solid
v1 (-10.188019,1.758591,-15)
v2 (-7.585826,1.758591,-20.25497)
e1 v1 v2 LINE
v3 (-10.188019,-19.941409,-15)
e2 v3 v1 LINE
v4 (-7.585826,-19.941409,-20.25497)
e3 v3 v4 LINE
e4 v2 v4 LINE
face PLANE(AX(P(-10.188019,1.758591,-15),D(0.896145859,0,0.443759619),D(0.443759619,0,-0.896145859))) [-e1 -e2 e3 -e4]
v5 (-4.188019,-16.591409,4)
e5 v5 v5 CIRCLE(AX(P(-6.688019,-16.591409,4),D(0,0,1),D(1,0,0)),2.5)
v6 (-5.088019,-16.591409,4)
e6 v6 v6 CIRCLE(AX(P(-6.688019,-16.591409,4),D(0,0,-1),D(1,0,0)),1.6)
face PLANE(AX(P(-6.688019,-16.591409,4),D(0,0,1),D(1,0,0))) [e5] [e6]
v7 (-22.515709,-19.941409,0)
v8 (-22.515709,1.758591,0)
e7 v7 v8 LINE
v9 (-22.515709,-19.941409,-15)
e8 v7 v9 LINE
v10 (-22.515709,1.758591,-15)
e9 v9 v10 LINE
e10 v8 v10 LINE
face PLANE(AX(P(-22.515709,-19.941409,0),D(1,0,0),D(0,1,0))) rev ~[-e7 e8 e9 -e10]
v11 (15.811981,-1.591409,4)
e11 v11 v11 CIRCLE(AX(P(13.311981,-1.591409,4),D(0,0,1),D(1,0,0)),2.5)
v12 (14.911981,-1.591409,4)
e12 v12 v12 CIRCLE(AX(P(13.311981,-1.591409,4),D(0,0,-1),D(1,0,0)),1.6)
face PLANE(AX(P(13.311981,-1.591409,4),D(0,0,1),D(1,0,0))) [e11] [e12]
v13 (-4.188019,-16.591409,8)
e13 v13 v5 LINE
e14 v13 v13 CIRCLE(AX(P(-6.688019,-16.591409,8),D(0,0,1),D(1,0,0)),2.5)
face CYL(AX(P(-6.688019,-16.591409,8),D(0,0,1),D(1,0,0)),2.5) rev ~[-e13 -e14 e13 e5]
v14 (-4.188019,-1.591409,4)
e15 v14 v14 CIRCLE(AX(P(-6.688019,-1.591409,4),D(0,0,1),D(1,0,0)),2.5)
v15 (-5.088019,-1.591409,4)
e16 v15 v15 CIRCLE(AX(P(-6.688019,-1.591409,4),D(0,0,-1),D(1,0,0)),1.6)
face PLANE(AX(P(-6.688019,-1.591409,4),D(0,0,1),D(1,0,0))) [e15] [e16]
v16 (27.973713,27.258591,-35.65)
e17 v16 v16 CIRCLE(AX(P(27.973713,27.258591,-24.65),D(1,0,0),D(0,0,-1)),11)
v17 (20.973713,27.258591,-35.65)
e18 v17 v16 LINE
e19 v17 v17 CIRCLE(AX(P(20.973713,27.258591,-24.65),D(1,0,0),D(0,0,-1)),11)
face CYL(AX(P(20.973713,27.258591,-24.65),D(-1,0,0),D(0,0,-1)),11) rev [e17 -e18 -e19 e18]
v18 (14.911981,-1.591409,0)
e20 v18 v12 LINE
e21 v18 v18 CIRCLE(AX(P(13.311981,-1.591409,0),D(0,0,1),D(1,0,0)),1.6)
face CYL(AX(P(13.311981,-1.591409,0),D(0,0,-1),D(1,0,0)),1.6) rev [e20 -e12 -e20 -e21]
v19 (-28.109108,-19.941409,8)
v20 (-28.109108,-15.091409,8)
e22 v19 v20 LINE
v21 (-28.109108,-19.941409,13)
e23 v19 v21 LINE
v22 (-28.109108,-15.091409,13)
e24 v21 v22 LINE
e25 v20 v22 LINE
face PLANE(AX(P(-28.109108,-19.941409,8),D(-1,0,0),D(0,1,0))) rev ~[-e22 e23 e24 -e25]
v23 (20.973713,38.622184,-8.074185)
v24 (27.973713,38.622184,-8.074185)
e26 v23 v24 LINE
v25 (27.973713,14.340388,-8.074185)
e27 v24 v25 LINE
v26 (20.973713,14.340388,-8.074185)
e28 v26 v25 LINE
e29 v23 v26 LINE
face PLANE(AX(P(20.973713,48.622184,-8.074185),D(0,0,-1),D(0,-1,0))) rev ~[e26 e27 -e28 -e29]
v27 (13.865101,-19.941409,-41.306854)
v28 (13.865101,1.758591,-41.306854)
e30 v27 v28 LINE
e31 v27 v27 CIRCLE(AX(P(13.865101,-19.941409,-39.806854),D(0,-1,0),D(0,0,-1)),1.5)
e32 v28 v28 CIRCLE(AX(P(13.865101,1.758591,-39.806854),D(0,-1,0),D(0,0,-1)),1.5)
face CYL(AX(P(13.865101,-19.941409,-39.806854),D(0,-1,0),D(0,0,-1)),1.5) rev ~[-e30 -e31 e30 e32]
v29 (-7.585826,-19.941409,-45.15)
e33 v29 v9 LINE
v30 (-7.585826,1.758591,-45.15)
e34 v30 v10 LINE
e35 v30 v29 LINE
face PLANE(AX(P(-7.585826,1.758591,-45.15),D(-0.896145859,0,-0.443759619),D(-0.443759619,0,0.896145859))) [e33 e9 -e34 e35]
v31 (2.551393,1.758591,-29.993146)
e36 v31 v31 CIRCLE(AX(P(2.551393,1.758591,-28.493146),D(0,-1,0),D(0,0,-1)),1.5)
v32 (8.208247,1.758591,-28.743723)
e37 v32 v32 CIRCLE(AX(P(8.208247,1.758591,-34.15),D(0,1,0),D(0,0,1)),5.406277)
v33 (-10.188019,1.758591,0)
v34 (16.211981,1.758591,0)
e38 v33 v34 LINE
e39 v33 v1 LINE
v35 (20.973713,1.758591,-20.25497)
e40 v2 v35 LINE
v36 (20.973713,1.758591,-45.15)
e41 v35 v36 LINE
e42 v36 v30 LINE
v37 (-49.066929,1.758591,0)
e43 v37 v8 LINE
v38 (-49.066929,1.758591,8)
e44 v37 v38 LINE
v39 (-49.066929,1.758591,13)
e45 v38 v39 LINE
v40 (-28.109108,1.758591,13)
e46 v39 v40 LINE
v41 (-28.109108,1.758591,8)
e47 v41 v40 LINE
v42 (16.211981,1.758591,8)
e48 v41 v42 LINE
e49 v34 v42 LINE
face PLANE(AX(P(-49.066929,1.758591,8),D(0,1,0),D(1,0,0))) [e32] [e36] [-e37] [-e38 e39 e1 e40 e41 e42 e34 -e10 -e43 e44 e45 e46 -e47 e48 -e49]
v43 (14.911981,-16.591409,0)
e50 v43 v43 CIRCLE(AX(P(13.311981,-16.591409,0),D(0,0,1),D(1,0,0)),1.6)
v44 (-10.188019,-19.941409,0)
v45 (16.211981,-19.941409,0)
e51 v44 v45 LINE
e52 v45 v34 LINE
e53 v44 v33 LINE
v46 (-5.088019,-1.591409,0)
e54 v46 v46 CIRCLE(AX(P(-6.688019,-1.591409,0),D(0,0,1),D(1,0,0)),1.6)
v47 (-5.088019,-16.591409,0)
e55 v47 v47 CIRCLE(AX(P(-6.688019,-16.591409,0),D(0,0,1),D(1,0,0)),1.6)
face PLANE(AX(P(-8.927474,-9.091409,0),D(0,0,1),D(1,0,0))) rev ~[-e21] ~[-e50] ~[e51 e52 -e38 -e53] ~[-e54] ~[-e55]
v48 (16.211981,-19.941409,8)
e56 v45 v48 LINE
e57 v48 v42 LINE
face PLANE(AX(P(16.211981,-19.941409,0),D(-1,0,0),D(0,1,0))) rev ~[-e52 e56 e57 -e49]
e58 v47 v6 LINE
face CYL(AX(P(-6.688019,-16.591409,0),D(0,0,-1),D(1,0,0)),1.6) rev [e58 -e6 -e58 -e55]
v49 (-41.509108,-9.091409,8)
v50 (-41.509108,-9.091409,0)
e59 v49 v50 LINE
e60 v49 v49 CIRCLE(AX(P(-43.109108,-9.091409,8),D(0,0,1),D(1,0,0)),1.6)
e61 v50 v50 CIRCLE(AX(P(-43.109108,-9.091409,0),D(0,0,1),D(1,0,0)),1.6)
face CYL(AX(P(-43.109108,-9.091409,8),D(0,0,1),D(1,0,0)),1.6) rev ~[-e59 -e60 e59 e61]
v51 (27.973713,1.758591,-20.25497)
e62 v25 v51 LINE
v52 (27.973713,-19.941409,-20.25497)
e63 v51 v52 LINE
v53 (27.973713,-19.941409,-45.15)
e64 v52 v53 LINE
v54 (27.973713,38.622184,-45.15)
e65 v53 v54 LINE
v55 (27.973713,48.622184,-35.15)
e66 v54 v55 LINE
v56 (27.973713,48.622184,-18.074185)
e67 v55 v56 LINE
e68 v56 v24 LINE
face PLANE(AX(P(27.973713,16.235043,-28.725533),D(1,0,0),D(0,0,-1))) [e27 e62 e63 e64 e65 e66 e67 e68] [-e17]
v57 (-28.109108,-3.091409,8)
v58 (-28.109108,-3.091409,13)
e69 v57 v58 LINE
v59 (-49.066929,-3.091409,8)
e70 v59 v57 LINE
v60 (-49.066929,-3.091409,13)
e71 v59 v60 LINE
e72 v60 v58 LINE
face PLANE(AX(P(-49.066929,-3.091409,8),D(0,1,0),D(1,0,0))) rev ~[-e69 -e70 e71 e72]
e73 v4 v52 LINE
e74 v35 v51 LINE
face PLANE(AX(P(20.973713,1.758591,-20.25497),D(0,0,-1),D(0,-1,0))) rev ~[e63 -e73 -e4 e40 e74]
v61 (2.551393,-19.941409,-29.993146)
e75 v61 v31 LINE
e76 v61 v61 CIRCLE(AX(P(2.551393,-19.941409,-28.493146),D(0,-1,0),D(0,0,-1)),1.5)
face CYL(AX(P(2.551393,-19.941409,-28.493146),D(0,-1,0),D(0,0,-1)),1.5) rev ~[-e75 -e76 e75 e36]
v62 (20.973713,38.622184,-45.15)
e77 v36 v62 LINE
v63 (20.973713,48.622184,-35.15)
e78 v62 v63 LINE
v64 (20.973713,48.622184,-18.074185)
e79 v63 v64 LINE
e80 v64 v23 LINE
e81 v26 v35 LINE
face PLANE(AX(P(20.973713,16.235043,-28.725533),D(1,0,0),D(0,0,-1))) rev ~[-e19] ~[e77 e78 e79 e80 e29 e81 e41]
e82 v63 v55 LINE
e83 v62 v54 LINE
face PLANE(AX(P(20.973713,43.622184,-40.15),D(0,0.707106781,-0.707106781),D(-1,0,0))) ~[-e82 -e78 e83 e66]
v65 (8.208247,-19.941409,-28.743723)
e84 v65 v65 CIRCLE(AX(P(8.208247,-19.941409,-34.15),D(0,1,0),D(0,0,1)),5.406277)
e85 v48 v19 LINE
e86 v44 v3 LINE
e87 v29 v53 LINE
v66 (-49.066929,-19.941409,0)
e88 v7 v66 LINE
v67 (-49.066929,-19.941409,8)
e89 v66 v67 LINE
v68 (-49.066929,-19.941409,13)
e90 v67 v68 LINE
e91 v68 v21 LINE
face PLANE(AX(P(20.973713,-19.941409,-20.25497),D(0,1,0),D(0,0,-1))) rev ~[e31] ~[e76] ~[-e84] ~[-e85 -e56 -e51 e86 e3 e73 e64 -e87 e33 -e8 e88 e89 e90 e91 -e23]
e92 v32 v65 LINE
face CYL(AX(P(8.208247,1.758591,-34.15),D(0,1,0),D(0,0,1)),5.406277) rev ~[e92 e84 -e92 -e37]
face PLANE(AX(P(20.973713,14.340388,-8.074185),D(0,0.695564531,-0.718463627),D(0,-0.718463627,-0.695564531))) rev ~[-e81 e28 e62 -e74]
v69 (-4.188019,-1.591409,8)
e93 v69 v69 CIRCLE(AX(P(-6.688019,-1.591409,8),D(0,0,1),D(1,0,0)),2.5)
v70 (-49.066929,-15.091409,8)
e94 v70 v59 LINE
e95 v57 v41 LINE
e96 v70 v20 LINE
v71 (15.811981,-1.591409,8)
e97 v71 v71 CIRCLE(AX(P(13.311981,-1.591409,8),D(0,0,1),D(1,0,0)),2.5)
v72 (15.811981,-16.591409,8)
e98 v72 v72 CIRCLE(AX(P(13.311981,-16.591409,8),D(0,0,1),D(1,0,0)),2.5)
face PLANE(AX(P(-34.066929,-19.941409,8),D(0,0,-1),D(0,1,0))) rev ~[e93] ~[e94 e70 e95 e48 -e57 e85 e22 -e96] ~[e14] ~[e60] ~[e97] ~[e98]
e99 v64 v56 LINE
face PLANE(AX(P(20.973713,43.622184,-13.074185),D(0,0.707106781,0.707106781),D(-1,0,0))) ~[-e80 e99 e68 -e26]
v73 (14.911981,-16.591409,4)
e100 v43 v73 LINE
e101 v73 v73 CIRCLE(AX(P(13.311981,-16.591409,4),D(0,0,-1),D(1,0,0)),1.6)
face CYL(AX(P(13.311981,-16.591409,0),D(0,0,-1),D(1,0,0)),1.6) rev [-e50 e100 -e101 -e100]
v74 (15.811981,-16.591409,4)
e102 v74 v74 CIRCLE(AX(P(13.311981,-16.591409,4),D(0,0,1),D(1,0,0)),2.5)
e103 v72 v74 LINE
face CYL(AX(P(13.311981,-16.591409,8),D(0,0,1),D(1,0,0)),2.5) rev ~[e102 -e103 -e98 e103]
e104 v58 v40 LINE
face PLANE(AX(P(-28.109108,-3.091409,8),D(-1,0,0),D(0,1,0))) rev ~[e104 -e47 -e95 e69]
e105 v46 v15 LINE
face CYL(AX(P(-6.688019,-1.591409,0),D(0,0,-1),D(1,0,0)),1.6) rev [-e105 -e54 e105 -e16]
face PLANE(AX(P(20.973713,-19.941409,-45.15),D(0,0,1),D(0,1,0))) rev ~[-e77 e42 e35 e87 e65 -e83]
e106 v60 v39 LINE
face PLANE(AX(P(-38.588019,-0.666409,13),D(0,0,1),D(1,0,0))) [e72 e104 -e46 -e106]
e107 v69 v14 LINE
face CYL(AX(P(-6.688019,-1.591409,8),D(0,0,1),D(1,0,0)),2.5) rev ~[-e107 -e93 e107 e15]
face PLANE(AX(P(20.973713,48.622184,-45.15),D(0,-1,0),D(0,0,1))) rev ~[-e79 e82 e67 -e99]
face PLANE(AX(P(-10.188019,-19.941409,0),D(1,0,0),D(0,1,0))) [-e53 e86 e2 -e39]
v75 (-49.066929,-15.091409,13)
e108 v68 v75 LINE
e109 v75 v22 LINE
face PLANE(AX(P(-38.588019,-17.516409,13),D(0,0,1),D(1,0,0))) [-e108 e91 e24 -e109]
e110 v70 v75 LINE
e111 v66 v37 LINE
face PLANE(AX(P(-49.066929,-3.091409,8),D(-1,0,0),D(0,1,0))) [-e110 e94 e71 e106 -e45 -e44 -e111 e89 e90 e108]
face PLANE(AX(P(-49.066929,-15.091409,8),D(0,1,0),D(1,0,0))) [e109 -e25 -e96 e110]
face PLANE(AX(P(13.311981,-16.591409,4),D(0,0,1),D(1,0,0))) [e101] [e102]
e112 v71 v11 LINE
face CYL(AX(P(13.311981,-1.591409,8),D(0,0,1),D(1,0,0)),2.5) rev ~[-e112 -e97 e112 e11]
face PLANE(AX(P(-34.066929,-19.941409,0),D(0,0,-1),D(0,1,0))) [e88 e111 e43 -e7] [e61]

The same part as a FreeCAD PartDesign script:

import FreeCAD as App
import Part
import Sketcher
from FreeCAD import Vector
Q = App.Units.Quantity


def edges_at(feature, points):
    """Names of the edges that pass closest to the given points."""
    edges = feature.Shape.Edges
    near = lambda p: min(range(len(edges)), key=lambda i: edges[i].distToShape(Part.Vertex(*p))[0])
    return sorted({f"Edge{near(p) + 1}" for p in points})


def add_polygon(sketch, points):
    """Adds a closed chain of lines whose ends are joined by coincident constraints."""
    first, n = sketch.GeometryCount, len(points)
    for a, b in zip(points, points[1:] + points[:1]):
        sketch.addGeometry(Part.LineSegment(App.Vector(*a, 0), App.Vector(*b, 0)), False)
    for i in range(n):
        sketch.addConstraint(Sketcher.Constraint("Coincident", first + i, 2, first + (i + 1) % n, 1))

doc = App.newDocument("Part")
body = doc.addObject("PartDesign::Body", "Body")

# Sketch on XY plane
sketch1 = doc.addObject("Sketcher::SketchObject", "Sketch")
body.addObject(sketch1)
sketch1.AttachmentSupport = (doc.XY_Plane, [""])
sketch1.MapMode = "FlatFace"
add_polygon(sketch1, [(-34.066929, 1.758591), (-34.066929, -19.941409), (16.211981, -19.941409), (16.211981, 1.758591)])  # lines 0-3
sketch1.addGeometry(Part.Circle(Vector(-6.688019, -16.591409, 0), Vector(0, 0, 1), 1.6), False)  # 4
sketch1.addGeometry(Part.Circle(Vector(13.311981, -16.591409, 0), Vector(0, 0, 1), 1.6), False)  # 5
sketch1.addGeometry(Part.Circle(Vector(-6.688019, -1.591409, 0), Vector(0, 0, 1), 1.6), False)  # 6
sketch1.addGeometry(Part.Circle(Vector(13.311981, -1.591409, 0), Vector(0, 0, 1), 1.6), False)  # 7
sketch1.addConstraint([
    Sketcher.Constraint("Vertical", 0),
    Sketcher.Constraint("Horizontal", 1),
    Sketcher.Constraint("Vertical", 2),
    Sketcher.Constraint("Horizontal", 3),
    Sketcher.Constraint("Equal", 4, 5),
    Sketcher.Constraint("Equal", 5, 6),
    Sketcher.Constraint("Equal", 6, 7),
    Sketcher.Constraint("Horizontal", 4, 3, 5, 3),
    Sketcher.Constraint("Horizontal", 6, 3, 7, 3),
    Sketcher.Constraint("Vertical", 4, 3, 6, 3),
    Sketcher.Constraint("Vertical", 5, 3, 7, 3),
    Sketcher.Constraint("Diameter", 4, Q("3.2 mm")),
    Sketcher.Constraint("DistanceY", 0, 2, 0, 1, Q("21.7 mm")),
    Sketcher.Constraint("DistanceX", 4, 3, 5, 3, Q("20 mm")),
    Sketcher.Constraint("DistanceY", 4, 3, 6, 3, Q("15 mm")),
    Sketcher.Constraint("DistanceX", 5, 3, 1, 2, Q("2.9 mm")),
    Sketcher.Constraint("DistanceY", 0, 2, 4, 3, Q("3.35 mm")),
    Sketcher.Constraint("DistanceX", 1, 1, 1, 2, Q("50.278911 mm")),
    Sketcher.Constraint("DistanceX", 4, 3, -1, 1, Q("6.688019 mm")),
    Sketcher.Constraint("DistanceY", 4, 3, -1, 1, Q("16.591409 mm")),
])
pad1 = doc.addObject("PartDesign::Pad", "Pad")
body.addObject(pad1)
pad1.Profile = sketch1
pad1.Length = 8

# Sketch on XY plane
sketch2 = doc.addObject("Sketcher::SketchObject", "Sketch001")
body.addObject(sketch2)
sketch2.AttachmentSupport = (doc.XY_Plane, [""])
sketch2.MapMode = "FlatFace"
sketch2.AttachmentOffset = App.Placement(Vector(0, 0, 8), App.Rotation())
sketch2.addGeometry([
    Part.Circle(Vector(13.311981, -16.591409, 0), Vector(0, 0, 1), 2.5),
    Part.Circle(Vector(-6.688019, -16.591409, 0), Vector(0, 0, 1), 2.5),
    Part.Circle(Vector(-6.688019, -1.591409, 0), Vector(0, 0, 1), 2.5),
    Part.Circle(Vector(13.311981, -1.591409, 0), Vector(0, 0, 1), 2.5),
], False)
sketch2.addConstraint([
    Sketcher.Constraint("Equal", 0, 1),
    Sketcher.Constraint("Equal", 1, 2),
    Sketcher.Constraint("Equal", 2, 3),
    Sketcher.Constraint("Horizontal", 0, 3, 1, 3),
    Sketcher.Constraint("Horizontal", 2, 3, 3, 3),
    Sketcher.Constraint("Vertical", 1, 3, 2, 3),
    Sketcher.Constraint("Vertical", 0, 3, 3, 3),
    Sketcher.Constraint("Diameter", 0, Q("5 mm")),
    Sketcher.Constraint("DistanceX", 1, 3, 0, 3, Q("20 mm")),
    Sketcher.Constraint("DistanceY", 1, 3, 2, 3, Q("15 mm")),
    Sketcher.Constraint("DistanceX", -1, 1, 0, 3, Q("13.311981 mm")),
    Sketcher.Constraint("DistanceY", 0, 3, -1, 1, Q("16.591409 mm")),
])
pocket1 = doc.addObject("PartDesign::Pocket", "Pocket")
body.addObject(pocket1)
pocket1.Profile = sketch2
pocket1.Length = 4

# Sketch on XY plane
sketch3 = doc.addObject("Sketcher::SketchObject", "Sketch002")
body.addObject(sketch3)
sketch3.AttachmentSupport = (doc.XY_Plane, [""])
sketch3.MapMode = "FlatFace"
add_polygon(sketch3, [(-10.188019, 1.758591), (-10.188019, -19.941409), (-22.515709, -19.941409), (-22.515709, 1.758591)])  # lines 0-3
sketch3.addConstraint([
    Sketcher.Constraint("Vertical", 0),
    Sketcher.Constraint("Horizontal", 1),
    Sketcher.Constraint("Vertical", 2),
    Sketcher.Constraint("Horizontal", 3),
    Sketcher.Constraint("DistanceY", 0, 2, 0, 1, Q("21.7 mm")),
    Sketcher.Constraint("DistanceX", 1, 2, 1, 1, Q("12.327691 mm")),
    Sketcher.Constraint("DistanceX", 0, 2, -1, 1, Q("10.188019 mm")),
    Sketcher.Constraint("DistanceY", 0, 2, -1, 1, Q("19.941409 mm")),
])
pad2 = doc.addObject("PartDesign::Pad", "Pad001")
body.addObject(pad2)
pad2.Profile = sketch3
pad2.Length = 15
pad2.Reversed = True

# Sketch on XZ plane
sketch4 = doc.addObject("Sketcher::SketchObject", "Sketch003")
body.addObject(sketch4)
sketch4.AttachmentSupport = (doc.XZ_Plane, [""])
sketch4.MapMode = "FlatFace"
sketch4.AttachmentOffset = App.Placement(Vector(0, 0, -1.758591), App.Rotation())
add_polygon(sketch4, [(-22.515709, -15), (-10.188019, -15), (-7.585826, -20.25497), (20.973713, -20.25497), (20.973713, -45.15), (-7.585826, -45.15)])  # lines 0-5
sketch4.addGeometry(Part.Circle(Vector(8.208247, -34.15, 0), Vector(0, 0, 1), 5.406277), False)  # 6
sketch4.addConstraint([
    Sketcher.Constraint("Horizontal", 0),
    Sketcher.Constraint("Horizontal", 2),
    Sketcher.Constraint("Vertical", 3),
    Sketcher.Constraint("Horizontal", 4),
    Sketcher.Constraint("Parallel", 1, 5),
    Sketcher.Constraint("Vertical", 1, 2, 4, 2),
    Sketcher.Constraint("DistanceY", 0, 2, -1, 1, Q("15 mm")),
    Sketcher.Constraint("DistanceY", 3, 2, 6, 3, Q("11 mm")),
    Sketcher.Constraint("DistanceY", 6, 3, -1, 1, Q("34.15 mm")),
    Sketcher.Constraint("Diameter", 6, Q("10.812554 mm")),
    Sketcher.Constraint("DistanceX", 0, 1, 0, 2, Q("12.327691 mm")),
    Sketcher.Constraint("DistanceX", 2, 1, 2, 2, Q("28.55954 mm")),
    Sketcher.Constraint("DistanceY", 3, 2, 3, 1, Q("24.89503 mm")),
    Sketcher.Constraint("DistanceX", 0, 2, -1, 1, Q("10.188019 mm")),
    Sketcher.Constraint("DistanceX", -1, 1, 6, 3, Q("8.208247 mm")),
])
pad3 = doc.addObject("PartDesign::Pad", "Pad002")
body.addObject(pad3)
pad3.Profile = sketch4
pad3.Length = 21.7

# Sketch on XZ plane
sketch5 = doc.addObject("Sketcher::SketchObject", "Sketch004")
body.addObject(sketch5)
sketch5.AttachmentSupport = (doc.XZ_Plane, [""])
sketch5.MapMode = "FlatFace"
sketch5.AttachmentOffset = App.Placement(Vector(0, 0, 19.941409), App.Rotation())
sketch5.addGeometry([
    Part.Circle(Vector(2.551393, -28.493146, 0), Vector(0, 0, 1), 1.5),
    Part.Circle(Vector(13.865101, -39.806854, 0), Vector(0, 0, 1), 1.5),
], False)
sketch5.addConstraint([
    Sketcher.Constraint("Equal", 0, 1),
    Sketcher.Constraint("Diameter", 0, Q("3 mm")),
    Sketcher.Constraint("DistanceX", -1, 1, 1, 3, Q("13.865101 mm")),
    Sketcher.Constraint("DistanceX", 0, 3, 1, 3, Q("11.313708 mm")),
    Sketcher.Constraint("DistanceY", 1, 3, 0, 3, Q("11.313708 mm")),
    Sketcher.Constraint("DistanceY", 0, 3, -1, 1, Q("28.493146 mm")),
])
pocket2 = doc.addObject("PartDesign::Pocket", "Pocket001")
body.addObject(pocket2)
pocket2.Profile = sketch5
pocket2.Length = 21.7

# Sketch on YZ plane
sketch6 = doc.addObject("Sketcher::SketchObject", "Sketch005")
body.addObject(sketch6)
sketch6.AttachmentSupport = (doc.YZ_Plane, [""])
sketch6.MapMode = "FlatFace"
sketch6.AttachmentOffset = App.Placement(Vector(0, 0, -34.066929), App.Rotation())
add_polygon(sketch6, [(1.758591, 0), (-19.941409, 0), (-19.941409, 8), (1.758591, 8)])  # lines 0-3
sketch6.addConstraint([
    Sketcher.Constraint("Horizontal", 0),
    Sketcher.Constraint("Vertical", 1),
    Sketcher.Constraint("Horizontal", 2),
    Sketcher.Constraint("Vertical", 3),
    Sketcher.Constraint("PointOnObject", 0, 2, -1),
    Sketcher.Constraint("DistanceY", 1, 1, 1, 2, Q("8 mm")),
    Sketcher.Constraint("DistanceX", 0, 2, 0, 1, Q("21.7 mm")),
    Sketcher.Constraint("DistanceX", 0, 2, -1, 1, Q("19.941409 mm")),
])
pad4 = doc.addObject("PartDesign::Pad", "Pad003")
body.addObject(pad4)
pad4.Profile = sketch6
pad4.Length = 15
pad4.Reversed = True

# Sketch on XY plane
sketch7 = doc.addObject("Sketcher::SketchObject", "Sketch006")
body.addObject(sketch7)
sketch7.AttachmentSupport = (doc.XY_Plane, [""])
sketch7.MapMode = "FlatFace"
sketch7.AttachmentOffset = App.Placement(Vector(0, 0, 8), App.Rotation())
sketch7.addGeometry(Part.Circle(Vector(-43.109108, -9.091409, 0), Vector(0, 0, 1), 1.6), False)
sketch7.addConstraint([
    Sketcher.Constraint("Diameter", 0, Q("3.2 mm")),
    Sketcher.Constraint("DistanceY", 0, 3, -1, 1, Q("9.091409 mm")),
    Sketcher.Constraint("DistanceX", 0, 3, -1, 1, Q("43.109108 mm")),
])
pocket3 = doc.addObject("PartDesign::Pocket", "Pocket002")
body.addObject(pocket3)
pocket3.Profile = sketch7
pocket3.Length = 15

# Sketch on YZ plane
sketch8 = doc.addObject("Sketcher::SketchObject", "Sketch007")
body.addObject(sketch8)
sketch8.AttachmentSupport = (doc.YZ_Plane, [""])
sketch8.MapMode = "FlatFace"
sketch8.AttachmentOffset = App.Placement(Vector(0, 0, 20.973713), App.Rotation())
add_polygon(sketch8, [(14.340388, -8.074185), (1.758591, -20.25497), (-19.941409, -20.25497), (-19.941409, -45.15), (48.622184, -45.15), (48.622184, -8.074185)])  # lines 0-5
sketch8.addGeometry(Part.Circle(Vector(27.258591, -24.65, 0), Vector(0, 0, 1), 11), False)  # 6
sketch8.addConstraint([
    Sketcher.Constraint("Horizontal", 1),
    Sketcher.Constraint("Vertical", 2),
    Sketcher.Constraint("Horizontal", 3),
    Sketcher.Constraint("Vertical", 4),
    Sketcher.Constraint("Horizontal", 5),
    Sketcher.Constraint("Diameter", 6, Q("22 mm")),
    Sketcher.Constraint("DistanceX", 1, 2, 1, 1, Q("21.7 mm")),
    Sketcher.Constraint("DistanceX", 0, 2, 6, 3, Q("25.5 mm")),
    Sketcher.Constraint("DistanceY", 2, 2, 6, 3, Q("20.5 mm")),
    Sketcher.Constraint("DistanceY", 6, 3, -1, 1, Q("24.65 mm")),
    Sketcher.Constraint("DistanceY", 2, 2, 2, 1, Q("24.89503 mm")),
    Sketcher.Constraint("DistanceX", 3, 1, 3, 2, Q("68.563593 mm")),
    Sketcher.Constraint("DistanceX", 5, 2, 5, 1, Q("34.281796 mm")),
    Sketcher.Constraint("DistanceY", 4, 1, 4, 2, Q("37.075815 mm")),
    Sketcher.Constraint("DistanceX", -1, 1, 6, 3, Q("27.258591 mm")),
])
pad5 = doc.addObject("PartDesign::Pad", "Pad004")
body.addObject(pad5)
pad5.Profile = sketch8
pad5.Length = 7
doc.recompute()

chamfer = doc.addObject("PartDesign::Chamfer", "Chamfer")
body.addObject(chamfer)
chamfer.Base = (pad5, edges_at(pad5, [(24.474, 48.622, -45.15), (24.474, 48.622, -8.074)]))
chamfer.Size = 10

# Sketch on XY plane
sketch9 = doc.addObject("Sketcher::SketchObject", "Sketch008")
body.addObject(sketch9)
sketch9.AttachmentSupport = (doc.XY_Plane, [""])
sketch9.MapMode = "FlatFace"
sketch9.AttachmentOffset = App.Placement(Vector(0, 0, 8), App.Rotation())
add_polygon(sketch9, [(-49.066929, 1.758591), (-49.066929, -3.091409), (-28.109108, -3.091409), (-28.109108, 1.758591)])  # lines 0-3
add_polygon(sketch9, [(-49.066929, -15.091409), (-49.066929, -19.941409), (-28.109108, -19.941409), (-28.109108, -15.091409)])  # lines 4-7
sketch9.addConstraint([
    Sketcher.Constraint("Vertical", 0),
    Sketcher.Constraint("Horizontal", 1),
    Sketcher.Constraint("Vertical", 2),
    Sketcher.Constraint("Horizontal", 3),
    Sketcher.Constraint("Vertical", 4),
    Sketcher.Constraint("Horizontal", 5),
    Sketcher.Constraint("Vertical", 6),
    Sketcher.Constraint("Horizontal", 7),
    Sketcher.Constraint("Vertical", 3, 2, 4, 2),
    Sketcher.Constraint("Vertical", 2, 2, 5, 2),
    Sketcher.Constraint("Equal", 2, 4),
    Sketcher.Constraint("DistanceY", 6, 2, 1, 2, Q("12 mm")),
    Sketcher.Constraint("DistanceY", 0, 2, 0, 1, Q("4.85 mm")),
    Sketcher.Constraint("DistanceX", 1, 1, 1, 2, Q("20.957821 mm")),
    Sketcher.Constraint("DistanceX", 0, 2, -1, 1, Q("49.066929 mm")),
    Sketcher.Constraint("DistanceY", 0, 2, -1, 1, Q("3.091409 mm")),
])
pad6 = doc.addObject("PartDesign::Pad", "Pad005")
body.addObject(pad6)
pad6.Profile = sketch9
pad6.Length = 5

doc.recompute()
